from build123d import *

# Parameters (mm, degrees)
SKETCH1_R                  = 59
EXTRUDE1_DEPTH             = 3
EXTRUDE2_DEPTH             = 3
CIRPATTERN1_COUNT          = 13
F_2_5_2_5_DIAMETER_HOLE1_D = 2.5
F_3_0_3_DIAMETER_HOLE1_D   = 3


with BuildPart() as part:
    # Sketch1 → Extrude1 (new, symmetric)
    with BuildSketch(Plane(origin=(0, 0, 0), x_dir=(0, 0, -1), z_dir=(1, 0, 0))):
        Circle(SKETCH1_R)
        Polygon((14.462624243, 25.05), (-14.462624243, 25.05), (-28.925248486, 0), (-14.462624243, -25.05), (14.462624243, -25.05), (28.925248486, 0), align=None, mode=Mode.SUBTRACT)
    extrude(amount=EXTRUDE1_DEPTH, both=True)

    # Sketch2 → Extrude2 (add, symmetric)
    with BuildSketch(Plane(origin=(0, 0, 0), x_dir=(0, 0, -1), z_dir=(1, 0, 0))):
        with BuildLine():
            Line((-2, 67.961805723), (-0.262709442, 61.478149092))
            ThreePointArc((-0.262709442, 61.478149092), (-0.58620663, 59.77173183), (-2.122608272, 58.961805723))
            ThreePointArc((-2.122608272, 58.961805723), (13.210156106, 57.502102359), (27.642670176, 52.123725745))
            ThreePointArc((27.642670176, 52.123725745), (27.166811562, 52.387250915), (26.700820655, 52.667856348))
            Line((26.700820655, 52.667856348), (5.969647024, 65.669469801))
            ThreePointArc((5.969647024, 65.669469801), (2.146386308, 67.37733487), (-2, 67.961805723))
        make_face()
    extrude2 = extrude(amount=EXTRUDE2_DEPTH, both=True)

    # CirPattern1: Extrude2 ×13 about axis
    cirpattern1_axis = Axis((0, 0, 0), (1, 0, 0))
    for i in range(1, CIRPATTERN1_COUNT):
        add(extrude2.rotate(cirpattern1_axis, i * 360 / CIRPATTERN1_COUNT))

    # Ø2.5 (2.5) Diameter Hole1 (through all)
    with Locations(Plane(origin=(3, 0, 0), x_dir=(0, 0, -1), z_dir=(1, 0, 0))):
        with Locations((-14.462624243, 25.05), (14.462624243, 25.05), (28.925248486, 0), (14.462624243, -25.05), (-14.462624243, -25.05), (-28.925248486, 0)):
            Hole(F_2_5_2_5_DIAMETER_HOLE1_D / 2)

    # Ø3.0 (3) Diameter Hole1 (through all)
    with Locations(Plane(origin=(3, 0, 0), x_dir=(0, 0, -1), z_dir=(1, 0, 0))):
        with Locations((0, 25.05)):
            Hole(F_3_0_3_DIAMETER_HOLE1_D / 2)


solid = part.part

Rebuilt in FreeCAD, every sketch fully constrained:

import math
import FreeCAD as App
import Part
import Sketcher

V = App.Vector
Q = App.Units.Quantity

doc = App.newDocument("Part")
body = doc.addObject("PartDesign::Body", "Body")

sketch1 = doc.addObject("Sketcher::SketchObject", "Sketch")
body.addObject(sketch1)
sketch1.AttachmentSupport = (doc.YZ_Plane, [""])
sketch1.MapMode = "FlatFace"
sketch1.addGeometry([
    Part.Circle(V(0, 0, 0), V(0, 0, 1), 59),
    Part.LineSegment(V(25, 14, 0), V(25, -14, 0)),
    Part.LineSegment(V(25, -14, 0), V(0, -29, 0)),
    Part.LineSegment(V(0, -29, 0), V(-25, -14, 0)),
    Part.LineSegment(V(-25, -14, 0), V(-25, 14, 0)),
    Part.LineSegment(V(-25, 14, 0), V(0, 29, 0)),
    Part.LineSegment(V(0, 29, 0), V(25, 14, 0)),
], False)
sketch1.addConstraint([
    Sketcher.Constraint("Coincident", 1, 2, 2, 1),
    Sketcher.Constraint("Coincident", 2, 2, 3, 1),
    Sketcher.Constraint("Coincident", 3, 2, 4, 1),
    Sketcher.Constraint("Coincident", 4, 2, 5, 1),
    Sketcher.Constraint("Coincident", 5, 2, 6, 1),
    Sketcher.Constraint("Coincident", 6, 2, 1, 1),
    Sketcher.Constraint("Vertical", 1),
    Sketcher.Constraint("Vertical", 4),
    Sketcher.Constraint("Coincident", 0, 3, -1, 1),
    Sketcher.Constraint("Symmetric", 1, 2, 4, 2, -1, 1),
    Sketcher.Constraint("Symmetric", 2, 2, 5, 2, -1, 1),
    Sketcher.Constraint("PointOnObject", 2, 2, -2),
    Sketcher.Constraint("Parallel", 3, 6),
    Sketcher.Constraint("Horizontal", 1, 2, 3, 2),
    Sketcher.Constraint("Diameter", 0, Q("118 mm")),
    Sketcher.Constraint("Angle", 2, Q("-150 deg")),
    Sketcher.Constraint("DistanceX", 3, 2, 1, 2, Q("50.1 mm")),
    Sketcher.Constraint("DistanceY", 1, 2, 1, 1, Q("28.925248 mm")),
])
pad1 = doc.addObject("PartDesign::Pad", "Pad")
body.addObject(pad1)
pad1.Profile = sketch1
pad1.Length = 6
pad1.Midplane = True

sketch2 = doc.addObject("Sketcher::SketchObject", "Sketch001")
body.addObject(sketch2)
sketch2.AttachmentSupport = (doc.YZ_Plane, [""])
sketch2.MapMode = "FlatFace"
sketch2.addGeometry([
    Part.LineSegment(V(68, 2, 0), V(61.5, 0.3, 0)),
    Part.ArcOfCircle(Part.Circle(V(61, 2.2, 0), V(0, 0, 1), 2), math.radians(-178), math.radians(-75)),
    Part.ArcOfCircle(Part.Circle(V(0, 0, 0), V(0, 0, 1), 59), math.radians(-28), math.radians(2)),
    Part.ArcOfCircle(Part.Circle(V(65.4, -34.7, 0), V(0, 0, 1), 15), math.radians(147.91), math.radians(152.06)),
    Part.LineSegment(V(52.7, -26.7, 0), V(65.7, -6, 0)),
    Part.ArcOfCircle(Part.Circle(V(53, 2, 0), V(0, 0, 1), 15), math.radians(-32), math.radians(0)),
], False)
sketch2.addConstraint([
    Sketcher.Constraint("Tangent", 0, 2, 1, 2),
    Sketcher.Constraint("Tangent", 1, 1, 2, 2),
    Sketcher.Constraint("Tangent", 2, 1, 3, 2),
    Sketcher.Constraint("Tangent", 3, 1, 4, 1),
    Sketcher.Constraint("Tangent", 4, 2, 5, 1),
    Sketcher.Constraint("Coincident", 5, 2, 0, 1),
    Sketcher.Constraint("Coincident", 2, 3, -1, 1),
    Sketcher.Constraint("Equal", 3, 5),
    Sketcher.Constraint("Radius", 1, Q("2 mm")),
    Sketcher.Constraint("Radius", 2, Q("59 mm")),
    Sketcher.Constraint("Radius", 3, Q("15 mm")),
    Sketcher.Constraint("Angle", 0, Q("-165 deg")),
    Sketcher.Constraint("DistanceY", -1, 1, 5, 3, Q("2 mm")),
    Sketcher.Constraint("DistanceY", -1, 1, 5, 2, Q("2 mm")),
    Sketcher.Constraint("DistanceX", 5, 3, 1, 1, Q("6 mm")),
    Sketcher.Constraint("Distance", 4, Q("24.470871 mm")),
])
pad2 = doc.addObject("PartDesign::Pad", "Pad001")
body.addObject(pad2)
pad2.Profile = sketch2
pad2.Length = 6
pad2.Midplane = True
doc.recompute()

polarpattern = doc.addObject("PartDesign::PolarPattern", "PolarPattern")
body.addObject(polarpattern)
polarpattern.Originals = [pad2]
polarpattern.Axis = (doc.X_Axis, [""])
polarpattern.Angle = 360
polarpattern.Occurrences = 13
body.Tip = polarpattern

sketch3 = doc.addObject("Sketcher::SketchObject", "Sketch002")
body.addObject(sketch3)
sketch3.AttachmentSupport = (doc.YZ_Plane, [""])
sketch3.MapMode = "FlatFace"
sketch3.AttachmentOffset = App.Placement(V(0, 0, 3), App.Rotation())
sketch3.addGeometry([
    Part.Circle(V(25.1, 14.5, 0), V(0, 0, 1), 1.2),
    Part.Circle(V(25.1, -14.5, 0), V(0, 0, 1), 1.2),
    Part.Circle(V(0, -28.9, 0), V(0, 0, 1), 1.2),
    Part.Circle(V(-25.1, -14.5, 0), V(0, 0, 1), 1.2),
    Part.Circle(V(-25.1, 14.5, 0), V(0, 0, 1), 1.2),
    Part.Circle(V(0, 28.9, 0), V(0, 0, 1), 1.2),
], False)
sketch3.addConstraint([
    Sketcher.Constraint("Equal", 0, 1),
    Sketcher.Constraint("Equal", 1, 2),
    Sketcher.Constraint("Equal", 2, 3),
    Sketcher.Constraint("Equal", 3, 4),
    Sketcher.Constraint("Equal", 4, 5),
    Sketcher.Constraint("Symmetric", 0, 3, 3, 3, -1, 1),
    Sketcher.Constraint("Symmetric", 1, 3, 4, 3, -1, 1),
    Sketcher.Constraint("Symmetric", 2, 3, 5, 3, -1, 1),
    Sketcher.Constraint("Symmetric", 1, 3, 3, 3, -2),
    Sketcher.Constraint("PointOnObject", 2, 3, -2),
    Sketcher.Constraint("Diameter", 0, Q("2.5 mm")),
    Sketcher.Constraint("DistanceX", 3, 3, 1, 3, Q("50.1 mm")),
    Sketcher.Constraint("DistanceY", 2, 3, -1, 1, Q("28.925248 mm")),
    Sketcher.Constraint("DistanceY", 1, 3, 0, 3, Q("28.925248 mm")),
])
doc.recompute()
hole = doc.addObject("PartDesign::Hole", "Hole")
body.addObject(hole)
hole.Profile = sketch3
hole.ThreadType = "None"
hole.Diameter = 2.5
hole.DepthType = "ThroughAll"

sketch4 = doc.addObject("Sketcher::SketchObject", "Sketch003")
body.addObject(sketch4)
sketch4.AttachmentSupport = (doc.YZ_Plane, [""])
sketch4.MapMode = "FlatFace"
sketch4.AttachmentOffset = App.Placement(V(0, 0, 3), App.Rotation())
sketch4.addGeometry(Part.Circle(V(25.1, 0, 0), V(0, 0, 1), 1.5), False)
sketch4.addConstraint([
    Sketcher.Constraint("PointOnObject", 0, 3, -1),
    Sketcher.Constraint("Diameter", 0, Q("3 mm")),
    Sketcher.Constraint("DistanceX", -1, 1, 0, 3, Q("25.05 mm")),
])
doc.recompute()
hole2 = doc.addObject("PartDesign::Hole", "Hole001")
body.addObject(hole2)
hole2.Profile = sketch4
hole2.ThreadType = "None"
hole2.Diameter = 3
hole2.DepthType = "ThroughAll"

doc.recompute()
